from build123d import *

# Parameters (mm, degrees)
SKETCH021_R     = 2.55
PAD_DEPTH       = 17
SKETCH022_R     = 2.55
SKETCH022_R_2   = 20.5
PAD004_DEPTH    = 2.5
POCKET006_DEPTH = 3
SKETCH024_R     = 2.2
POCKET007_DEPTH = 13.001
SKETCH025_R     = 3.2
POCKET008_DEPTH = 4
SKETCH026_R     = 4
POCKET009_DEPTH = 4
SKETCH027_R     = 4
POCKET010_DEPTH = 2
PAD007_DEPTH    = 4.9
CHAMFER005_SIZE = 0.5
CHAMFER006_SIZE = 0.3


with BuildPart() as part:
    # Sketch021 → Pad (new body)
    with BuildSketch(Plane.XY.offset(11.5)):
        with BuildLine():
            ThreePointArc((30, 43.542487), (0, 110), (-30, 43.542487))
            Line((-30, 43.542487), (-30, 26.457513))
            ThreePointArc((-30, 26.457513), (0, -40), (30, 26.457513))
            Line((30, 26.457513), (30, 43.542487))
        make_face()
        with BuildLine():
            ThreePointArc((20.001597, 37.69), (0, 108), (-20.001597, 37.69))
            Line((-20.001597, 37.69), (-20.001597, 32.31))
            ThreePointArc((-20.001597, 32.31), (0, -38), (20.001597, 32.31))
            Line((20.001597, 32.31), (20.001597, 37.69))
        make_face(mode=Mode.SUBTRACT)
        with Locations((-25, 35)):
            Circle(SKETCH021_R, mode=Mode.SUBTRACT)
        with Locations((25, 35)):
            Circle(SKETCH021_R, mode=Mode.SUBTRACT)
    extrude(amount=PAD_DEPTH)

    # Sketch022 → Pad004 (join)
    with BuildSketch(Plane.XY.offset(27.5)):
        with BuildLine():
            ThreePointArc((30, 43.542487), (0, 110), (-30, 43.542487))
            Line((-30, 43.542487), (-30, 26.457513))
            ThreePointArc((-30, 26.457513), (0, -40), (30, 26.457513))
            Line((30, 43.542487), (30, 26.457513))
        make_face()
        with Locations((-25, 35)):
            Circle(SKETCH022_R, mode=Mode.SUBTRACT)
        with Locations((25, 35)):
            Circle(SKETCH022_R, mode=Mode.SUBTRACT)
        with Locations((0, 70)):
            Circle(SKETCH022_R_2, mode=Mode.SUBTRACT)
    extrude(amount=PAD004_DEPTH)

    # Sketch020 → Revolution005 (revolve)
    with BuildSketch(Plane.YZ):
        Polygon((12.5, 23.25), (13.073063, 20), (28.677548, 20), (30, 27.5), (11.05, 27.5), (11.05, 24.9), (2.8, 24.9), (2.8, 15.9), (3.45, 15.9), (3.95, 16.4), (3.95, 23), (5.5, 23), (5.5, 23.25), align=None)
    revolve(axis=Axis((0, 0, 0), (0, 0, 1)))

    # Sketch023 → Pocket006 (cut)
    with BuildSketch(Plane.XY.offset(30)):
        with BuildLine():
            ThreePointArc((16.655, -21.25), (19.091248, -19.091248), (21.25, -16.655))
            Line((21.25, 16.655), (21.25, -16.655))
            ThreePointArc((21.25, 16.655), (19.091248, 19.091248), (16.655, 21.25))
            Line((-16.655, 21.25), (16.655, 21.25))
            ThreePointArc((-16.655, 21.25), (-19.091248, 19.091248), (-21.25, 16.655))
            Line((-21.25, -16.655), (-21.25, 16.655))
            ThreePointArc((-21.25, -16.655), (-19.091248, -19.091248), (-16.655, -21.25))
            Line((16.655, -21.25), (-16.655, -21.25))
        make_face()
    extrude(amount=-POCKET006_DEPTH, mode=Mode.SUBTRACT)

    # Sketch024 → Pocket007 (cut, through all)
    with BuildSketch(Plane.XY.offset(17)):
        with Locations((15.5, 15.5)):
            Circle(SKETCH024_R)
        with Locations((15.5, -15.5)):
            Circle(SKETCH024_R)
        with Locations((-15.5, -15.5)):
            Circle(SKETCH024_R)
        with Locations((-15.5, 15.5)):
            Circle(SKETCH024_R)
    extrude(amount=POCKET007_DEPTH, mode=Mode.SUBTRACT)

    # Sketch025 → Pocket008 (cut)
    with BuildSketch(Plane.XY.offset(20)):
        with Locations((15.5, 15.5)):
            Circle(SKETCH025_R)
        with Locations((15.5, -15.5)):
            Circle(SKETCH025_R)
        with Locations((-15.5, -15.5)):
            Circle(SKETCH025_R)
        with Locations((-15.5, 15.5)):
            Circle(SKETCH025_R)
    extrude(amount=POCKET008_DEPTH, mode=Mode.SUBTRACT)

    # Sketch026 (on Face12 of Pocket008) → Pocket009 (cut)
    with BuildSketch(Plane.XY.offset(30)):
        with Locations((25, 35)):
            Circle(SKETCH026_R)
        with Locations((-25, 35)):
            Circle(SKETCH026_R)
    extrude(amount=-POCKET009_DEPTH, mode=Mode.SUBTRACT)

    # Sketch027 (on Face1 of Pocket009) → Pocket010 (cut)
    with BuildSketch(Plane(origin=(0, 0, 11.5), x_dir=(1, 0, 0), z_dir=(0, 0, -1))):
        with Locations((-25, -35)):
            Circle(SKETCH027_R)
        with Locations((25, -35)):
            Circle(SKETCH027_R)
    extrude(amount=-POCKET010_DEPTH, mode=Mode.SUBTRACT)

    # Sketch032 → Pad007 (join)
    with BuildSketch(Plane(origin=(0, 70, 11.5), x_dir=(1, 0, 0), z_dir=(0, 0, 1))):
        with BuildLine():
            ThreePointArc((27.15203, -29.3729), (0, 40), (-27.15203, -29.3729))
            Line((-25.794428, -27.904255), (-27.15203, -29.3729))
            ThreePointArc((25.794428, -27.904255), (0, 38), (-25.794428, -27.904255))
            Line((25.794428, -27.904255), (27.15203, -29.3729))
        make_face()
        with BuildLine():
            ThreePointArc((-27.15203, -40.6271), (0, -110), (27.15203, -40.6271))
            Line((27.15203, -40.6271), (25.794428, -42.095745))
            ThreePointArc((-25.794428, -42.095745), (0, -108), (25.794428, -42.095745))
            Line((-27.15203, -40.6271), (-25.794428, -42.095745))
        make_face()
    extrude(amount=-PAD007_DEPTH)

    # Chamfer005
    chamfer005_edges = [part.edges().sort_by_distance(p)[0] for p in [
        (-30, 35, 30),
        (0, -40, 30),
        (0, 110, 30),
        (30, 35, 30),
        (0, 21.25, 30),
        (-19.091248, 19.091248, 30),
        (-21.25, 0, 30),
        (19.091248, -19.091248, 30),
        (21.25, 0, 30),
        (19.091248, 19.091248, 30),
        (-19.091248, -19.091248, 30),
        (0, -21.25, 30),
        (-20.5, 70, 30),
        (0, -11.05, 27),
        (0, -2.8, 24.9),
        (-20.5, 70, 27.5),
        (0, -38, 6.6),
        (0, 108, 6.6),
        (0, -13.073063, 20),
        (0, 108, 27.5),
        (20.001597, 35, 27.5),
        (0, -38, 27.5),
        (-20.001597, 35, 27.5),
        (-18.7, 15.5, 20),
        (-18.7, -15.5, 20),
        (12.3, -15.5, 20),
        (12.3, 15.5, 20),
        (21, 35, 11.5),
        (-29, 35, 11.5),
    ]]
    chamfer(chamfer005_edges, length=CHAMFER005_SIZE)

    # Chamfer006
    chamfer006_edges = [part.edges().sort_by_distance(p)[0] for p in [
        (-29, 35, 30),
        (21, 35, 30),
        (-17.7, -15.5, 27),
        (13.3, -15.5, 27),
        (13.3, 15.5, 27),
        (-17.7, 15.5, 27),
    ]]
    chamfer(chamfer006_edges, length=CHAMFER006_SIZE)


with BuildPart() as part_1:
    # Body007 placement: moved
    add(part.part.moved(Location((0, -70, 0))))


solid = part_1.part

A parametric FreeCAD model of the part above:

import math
import FreeCAD as App
import Part
import Sketcher

V = App.Vector
Q = App.Units.Quantity


def edges_at(feature, points):
    """Names of the edges that pass closest to the given points."""
    edges = feature.Shape.Edges
    near = lambda p: min(range(len(edges)), key=lambda i: edges[i].distToShape(Part.Vertex(*p))[0])
    return sorted({f"Edge{near(p) + 1}" for p in points})

doc = App.newDocument("Part")
body = doc.addObject("PartDesign::Body", "Body")

sketch1 = doc.addObject("Sketcher::SketchObject", "Sketch")
body.addObject(sketch1)
sketch1.AttachmentSupport = (doc.XY_Plane, [""])
sketch1.MapMode = "FlatFace"
sketch1.AttachmentOffset = App.Placement(V(0, 0, 11.5), App.Rotation())
sketch1.addGeometry([
    Part.ArcOfCircle(Part.Circle(V(0, 70, 0), V(0, 0, 1), 40), math.radians(-41.409622), math.radians(221.409622)),
    Part.LineSegment(V(-30, 43.542487, 0), V(-30, 26.457513, 0)),
    Part.ArcOfCircle(Part.Circle(V(0, 0, 0), V(0, 0, 1), 40), math.radians(138.590378), math.radians(401.409622)),
    Part.LineSegment(V(30, 26.457513, 0), V(30, 43.542487, 0)),
    Part.Circle(V(-25, 35, 0), V(0, 0, 1), 2.55),
    Part.ArcOfCircle(Part.Circle(V(0, 70, 0), V(0, 0, 1), 38), math.radians(-58.240304), math.radians(238.240304)),
    Part.LineSegment(V(20.001597, 37.69, 0), V(20.001597, 32.31, 0)),
    Part.ArcOfCircle(Part.Circle(V(0, 0, 0), V(0, 0, 1), 38), math.radians(121.759696), math.radians(418.240304)),
    Part.LineSegment(V(-20.001597, 32.31, 0), V(-20.001597, 37.69, 0)),
    Part.Circle(V(25, 35, 0), V(0, 0, 1), 2.55),
], False)
sketch1.addConstraint([
    Sketcher.Constraint("Coincident", 0, 2, 1, 1),
    Sketcher.Constraint("Coincident", 1, 2, 2, 1),
    Sketcher.Constraint("Coincident", 2, 2, 3, 1),
    Sketcher.Constraint("Coincident", 3, 2, 0, 1),
    Sketcher.Constraint("Coincident", 5, 1, 6, 1),
    Sketcher.Constraint("Coincident", 6, 2, 7, 2),
    Sketcher.Constraint("Coincident", 7, 1, 8, 1),
    Sketcher.Constraint("Coincident", 8, 2, 5, 2),
    Sketcher.Constraint("Vertical", 1),
    Sketcher.Constraint("Vertical", 3),
    Sketcher.Constraint("Vertical", 6),
    Sketcher.Constraint("Vertical", 8),
    Sketcher.Constraint("Coincident", 2, 3, -1, 1),
    Sketcher.Constraint("Coincident", 7, 3, -1, 1),
    Sketcher.Constraint("Coincident", 5, 3, 0, 3),
    Sketcher.Constraint("Equal", 0, 2),
    Sketcher.Constraint("Equal", 5, 7),
    Sketcher.Constraint("Equal", 4, 9),
    Sketcher.Constraint("Symmetric", 4, 3, 9, 3, -2),
    Sketcher.Constraint("Symmetric", 0, 2, 3, 2, -2),
    Sketcher.Constraint("Horizontal", 6, 2, 7, 1),
    Sketcher.Constraint("Radius", 0, 40.0),
    Sketcher.Constraint("Radius", 5, 38.0),
    Sketcher.Constraint("Diameter", 4, 5.1),
    Sketcher.Constraint("DistanceY", -1, 1, 0, 3, 70.0),
    Sketcher.Constraint("DistanceX", 4, 3, -1, 1, 25.0),
    Sketcher.Constraint("DistanceY", -1, 1, 4, 3, 35.0),
    Sketcher.Constraint("DistanceX", 0, 2, -1, 1, 30.0),
    Sketcher.Constraint("DistanceY", 6, 2, 6, 1, 5.38),
])
pad1 = doc.addObject("PartDesign::Pad", "Pad")
body.addObject(pad1)
pad1.Profile = sketch1
pad1.Length = 17

sketch2 = doc.addObject("Sketcher::SketchObject", "Sketch001")
body.addObject(sketch2)
sketch2.AttachmentSupport = (doc.XY_Plane, [""])
sketch2.MapMode = "FlatFace"
sketch2.AttachmentOffset = App.Placement(V(0, 0, 27.5), App.Rotation())
sketch2.addGeometry([
    Part.ArcOfCircle(Part.Circle(V(0, 70, 0), V(0, 0, 1), 40), math.radians(-41.409622), math.radians(221.409622)),
    Part.LineSegment(V(-30, 43.542487, 0), V(-30, 26.457513, 0)),
    Part.ArcOfCircle(Part.Circle(V(0, 0, 0), V(0, 0, 1), 40), math.radians(138.590378), math.radians(401.409622)),
    Part.LineSegment(V(30, 26.457513, 0), V(30, 43.542487, 0)),
    Part.Circle(V(-25, 35, 0), V(0, 0, 1), 2.55),
    Part.Circle(V(25, 35, 0), V(0, 0, 1), 2.55),
    Part.Circle(V(0, 70, 0), V(0, 0, 1), 20.5),
], False)
sketch2.addConstraint([
    Sketcher.Constraint("Coincident", 0, 2, 1, 1),
    Sketcher.Constraint("Coincident", 1, 2, 2, 1),
    Sketcher.Constraint("Coincident", 2, 2, 3, 1),
    Sketcher.Constraint("Coincident", 3, 2, 0, 1),
    Sketcher.Constraint("Vertical", 1),
    Sketcher.Constraint("Vertical", 3),
    Sketcher.Constraint("Coincident", 2, 3, -1, 1),
    Sketcher.Constraint("Coincident", 6, 3, 0, 3),
    Sketcher.Constraint("Equal", 0, 2),
    Sketcher.Constraint("Equal", 4, 5),
    Sketcher.Constraint("Symmetric", 4, 3, 5, 3, -2),
    Sketcher.Constraint("Symmetric", 0, 2, 3, 2, -2),
    Sketcher.Constraint("Diameter", 6, 41.0),
    Sketcher.Constraint("Radius", 0, 40.0),
    Sketcher.Constraint("Diameter", 4, 5.1),
    Sketcher.Constraint("DistanceY", -1, 1, 0, 3, 70.0),
    Sketcher.Constraint("DistanceX", 4, 3, -1, 1, 25.0),
    Sketcher.Constraint("DistanceY", -1, 1, 4, 3, 35.0),
    Sketcher.Constraint("DistanceX", 0, 2, -1, 1, 30.0),
])
pad2 = doc.addObject("PartDesign::Pad", "Pad001")
body.addObject(pad2)
pad2.Profile = sketch2
pad2.Length = 2.5

sketch3 = doc.addObject("Sketcher::SketchObject", "Sketch002")
body.addObject(sketch3)
sketch3.AttachmentSupport = (doc.YZ_Plane, [""])
sketch3.MapMode = "FlatFace"
sketch3.addGeometry([
    Part.LineSegment(V(12.5, 23.25, 0), V(13.073063, 20, 0)),
    Part.LineSegment(V(13.073063, 20, 0), V(28.677548, 20, 0)),
    Part.LineSegment(V(28.677548, 20, 0), V(30, 27.5, 0)),
    Part.LineSegment(V(30, 27.5, 0), V(11.05, 27.5, 0)),
    Part.LineSegment(V(11.05, 27.5, 0), V(11.05, 24.9, 0)),
    Part.LineSegment(V(11.05, 24.9, 0), V(2.8, 24.9, 0)),
    Part.LineSegment(V(2.8, 24.9, 0), V(2.8, 15.9, 0)),
    Part.LineSegment(V(2.8, 15.9, 0), V(3.45, 15.9, 0)),
    Part.LineSegment(V(3.45, 15.9, 0), V(3.95, 16.4, 0)),
    Part.LineSegment(V(3.95, 16.4, 0), V(3.95, 23, 0)),
    Part.LineSegment(V(3.95, 23, 0), V(5.5, 23, 0)),
    Part.LineSegment(V(5.5, 23, 0), V(5.5, 23.25, 0)),
    Part.LineSegment(V(5.5, 23.25, 0), V(12.5, 23.25, 0)),
], False)
sketch3.addConstraint([
    Sketcher.Constraint("Coincident", 0, 2, 1, 1),
    Sketcher.Constraint("Coincident", 1, 2, 2, 1),
    Sketcher.Constraint("Coincident", 2, 2, 3, 1),
    Sketcher.Constraint("Coincident", 3, 2, 4, 1),
    Sketcher.Constraint("Coincident", 4, 2, 5, 1),
    Sketcher.Constraint("Coincident", 5, 2, 6, 1),
    Sketcher.Constraint("Coincident", 6, 2, 7, 1),
    Sketcher.Constraint("Coincident", 7, 2, 8, 1),
    Sketcher.Constraint("Coincident", 8, 2, 9, 1),
    Sketcher.Constraint("Coincident", 9, 2, 10, 1),
    Sketcher.Constraint("Coincident", 10, 2, 11, 1),
    Sketcher.Constraint("Coincident", 11, 2, 12, 1),
    Sketcher.Constraint("Coincident", 12, 2, 0, 1),
    Sketcher.Constraint("Horizontal", 1),
    Sketcher.Constraint("Horizontal", 3),
    Sketcher.Constraint("Vertical", 4),
    Sketcher.Constraint("Horizontal", 5),
    Sketcher.Constraint("Vertical", 6),
    Sketcher.Constraint("Horizontal", 7),
    Sketcher.Constraint("Vertical", 9),
    Sketcher.Constraint("Horizontal", 10),
    Sketcher.Constraint("Vertical", 11),
    Sketcher.Constraint("Horizontal", 12),
    Sketcher.Constraint("DistanceX", 12, 1, 12, 2, 7.0),
    Sketcher.Constraint("DistanceY", 6, 2, 6, 1, 9.0),
    Sketcher.Constraint("Angle", 0, Q("-79.999995 deg")),
    Sketcher.Constraint("Angle", 2, Q("80.000003 deg")),
    Sketcher.Constraint("Angle", 8, Q("45 deg")),
    Sketcher.Constraint("DistanceY", 4, 2, 4, 1, 2.6),
    Sketcher.Constraint("DistanceY", 9, 1, 9, 2, 6.6),
    Sketcher.Constraint("DistanceY", -1, 1, 0, 2, 20.0),
    Sketcher.Constraint("DistanceX", -1, 1, 2, 2, 30.0),
    Sketcher.Constraint("DistanceY", -1, 1, 9, 2, 23.0),
    Sketcher.Constraint("DistanceX", 3, 2, 3, 1, 18.95),
    Sketcher.Constraint("DistanceX", 5, 2, 5, 1, 8.25),
    Sketcher.Constraint("DistanceX", 7, 1, 7, 2, 0.65),
    Sketcher.Constraint("DistanceX", 10, 1, 10, 2, 1.55),
    Sketcher.Constraint("DistanceY", 11, 1, 11, 2, 0.25),
    Sketcher.Constraint("DistanceY", -1, 1, 2, 2, 27.5),
])
revolution = doc.addObject("PartDesign::Revolution", "Revolution")
body.addObject(revolution)
revolution.Profile = sketch3
revolution.ReferenceAxis = (sketch3, ["V_Axis"])
revolution.Angle = 360

sketch4 = doc.addObject("Sketcher::SketchObject", "Sketch003")
body.addObject(sketch4)
sketch4.AttachmentSupport = (doc.XY_Plane, [""])
sketch4.MapMode = "FlatFace"
sketch4.AttachmentOffset = App.Placement(V(0, 0, 30), App.Rotation())
sketch4.addGeometry([
    Part.ArcOfCircle(Part.Circle(V(-0.000044, 0.000044, 0), V(0, 0, 1), 26.999165), math.radians(-51.911888), math.radians(-38.088112)),
    Part.LineSegment(V(21.25, -16.655, 0), V(21.25, 16.655, 0)),
    Part.ArcOfCircle(Part.Circle(V(-0.000044, -0.000044, 0), V(0, 0, 1), 26.999165), math.radians(38.088112), math.radians(51.911888)),
    Part.LineSegment(V(16.655, 21.25, 0), V(-16.655, 21.25, 0)),
    Part.ArcOfCircle(Part.Circle(V(0.000044, -0.000044, 0), V(0, 0, 1), 26.999165), math.radians(128.088112), math.radians(141.911888)),
    Part.LineSegment(V(-21.25, 16.655, 0), V(-21.25, -16.655, 0)),
    Part.ArcOfCircle(Part.Circle(V(0.000044, 0.000044, 0), V(0, 0, 1), 26.999165), math.radians(-141.911888), math.radians(-128.088112)),
    Part.LineSegment(V(-16.655, -21.25, 0), V(16.655, -21.25, 0)),
], False)
sketch4.addConstraint([
    Sketcher.Constraint("Coincident", 0, 2, 1, 1),
    Sketcher.Constraint("Coincident", 1, 2, 2, 1),
    Sketcher.Constraint("Coincident", 2, 2, 3, 1),
    Sketcher.Constraint("Coincident", 3, 2, 4, 1),
    Sketcher.Constraint("Coincident", 4, 2, 5, 1),
    Sketcher.Constraint("Coincident", 5, 2, 6, 1),
    Sketcher.Constraint("Coincident", 6, 2, 7, 1),
    Sketcher.Constraint("Coincident", 7, 2, 0, 1),
    Sketcher.Constraint("Vertical", 1),
    Sketcher.Constraint("Horizontal", 3),
    Sketcher.Constraint("Vertical", 5),
    Sketcher.Constraint("Horizontal", 7),
    Sketcher.Constraint("Equal", 0, 2),
    Sketcher.Constraint("Equal", 2, 4),
    Sketcher.Constraint("Equal", 4, 6),
    Sketcher.Constraint("Symmetric", 0, 3, 4, 3, -1, 1),
    Sketcher.Constraint("Symmetric", 2, 3, 6, 3, -1, 1),
    Sketcher.Constraint("Symmetric", 2, 3, 4, 3, -2),
    Sketcher.Constraint("Horizontal", 1, 2, 4, 2),
    Sketcher.Constraint("Vertical", 3, 2, 6, 2),
    Sketcher.Constraint("Equal", 7, 1),
    Sketcher.Constraint("DistanceX", 3, 2, 3, 1, 33.31),
    Sketcher.Constraint("DistanceX", -1, 1, 0, 2, 21.25),
    Sketcher.Constraint("DistanceY", -1, 1, 2, 2, 21.25),
    Sketcher.Constraint("Radius", 0, 26.999165),
])
pocket1 = doc.addObject("PartDesign::Pocket", "Pocket")
body.addObject(pocket1)
pocket1.Profile = sketch4
pocket1.Length = 3

sketch5 = doc.addObject("Sketcher::SketchObject", "Sketch004")
body.addObject(sketch5)
sketch5.AttachmentSupport = (doc.XY_Plane, [""])
sketch5.MapMode = "FlatFace"
sketch5.AttachmentOffset = App.Placement(V(0, 0, 17), App.Rotation())
sketch5.addGeometry([
    Part.Circle(V(15.5, 15.5, 0), V(0, 0, 1), 2.2),
    Part.Circle(V(15.5, -15.5, 0), V(0, 0, 1), 2.2),
    Part.Circle(V(-15.5, -15.5, 0), V(0, 0, 1), 2.2),
    Part.Circle(V(-15.5, 15.5, 0), V(0, 0, 1), 2.2),
], False)
sketch5.addConstraint([
    Sketcher.Constraint("Equal", 0, 1),
    Sketcher.Constraint("Equal", 1, 2),
    Sketcher.Constraint("Equal", 2, 3),
    Sketcher.Constraint("Symmetric", 0, 3, 2, 3, -1, 1),
    Sketcher.Constraint("Symmetric", 1, 3, 3, 3, -1, 1),
    Sketcher.Constraint("Symmetric", 1, 3, 2, 3, -2),
    Sketcher.Constraint("Diameter", 0, 4.4),
    Sketcher.Constraint("DistanceY", 1, 3, 0, 3, 31.0),
    Sketcher.Constraint("DistanceX", 2, 3, 1, 3, 31.0),
])
pocket2 = doc.addObject("PartDesign::Pocket", "Pocket001")
body.addObject(pocket2)
pocket2.Profile = sketch5
pocket2.Type = "ThroughAll"
pocket2.Reversed = True

sketch6 = doc.addObject("Sketcher::SketchObject", "Sketch005")
body.addObject(sketch6)
sketch6.AttachmentSupport = (doc.XY_Plane, [""])
sketch6.MapMode = "FlatFace"
sketch6.AttachmentOffset = App.Placement(V(0, 0, 20), App.Rotation())
sketch6.addGeometry([
    Part.Circle(V(15.5, 15.5, 0), V(0, 0, 1), 3.2),
    Part.Circle(V(15.5, -15.5, 0), V(0, 0, 1), 3.2),
    Part.Circle(V(-15.5, -15.5, 0), V(0, 0, 1), 3.2),
    Part.Circle(V(-15.5, 15.5, 0), V(0, 0, 1), 3.2),
], False)
sketch6.addConstraint([
    Sketcher.Constraint("Equal", 0, 1),
    Sketcher.Constraint("Equal", 1, 2),
    Sketcher.Constraint("Equal", 2, 3),
    Sketcher.Constraint("Symmetric", 0, 3, 2, 3, -1, 1),
    Sketcher.Constraint("Symmetric", 1, 3, 3, 3, -1, 1),
    Sketcher.Constraint("Symmetric", 1, 3, 2, 3, -2),
    Sketcher.Constraint("Diameter", 0, 6.4),
    Sketcher.Constraint("DistanceY", 1, 3, 0, 3, 31.0),
    Sketcher.Constraint("DistanceX", 2, 3, 1, 3, 31.0),
])
pocket3 = doc.addObject("PartDesign::Pocket", "Pocket002")
body.addObject(pocket3)
pocket3.Profile = sketch6
pocket3.Length = 4
pocket3.Reversed = True

sketch7 = doc.addObject("Sketcher::SketchObject", "Sketch006")
body.addObject(sketch7)
sketch7.AttachmentSupport = (doc.XY_Plane, [""])
sketch7.MapMode = "FlatFace"
sketch7.AttachmentOffset = App.Placement(V(0, 0, 30), App.Rotation())
sketch7.addGeometry([
    Part.Circle(V(25, 35, 0), V(0, 0, 1), 4),
    Part.Circle(V(-25, 35, 0), V(0, 0, 1), 4),
], False)
sketch7.addConstraint([
    Sketcher.Constraint("Equal", 0, 1),
    Sketcher.Constraint("Symmetric", 0, 3, 1, 3, -2),
    Sketcher.Constraint("Diameter", 0, 8.0),
    Sketcher.Constraint("DistanceX", -1, 1, 0, 3, 25.0),
    Sketcher.Constraint("DistanceY", -1, 1, 0, 3, 35.0),
])
pocket4 = doc.addObject("PartDesign::Pocket", "Pocket003")
body.addObject(pocket4)
pocket4.Profile = sketch7
pocket4.Length = 4

sketch8 = doc.addObject("Sketcher::SketchObject", "Sketch007")
body.addObject(sketch8)
sketch8.AttachmentSupport = (doc.XY_Plane, [""])
sketch8.MapMode = "FlatFace"
sketch8.AttachmentOffset = App.Placement(V(0, 0, 11.5), App.Rotation())
sketch8.addGeometry([
    Part.Circle(V(-25, 35, 0), V(0, 0, 1), 4),
    Part.Circle(V(25, 35, 0), V(0, 0, 1), 4),
], False)
sketch8.addConstraint([
    Sketcher.Constraint("Equal", 0, 1),
    Sketcher.Constraint("Symmetric", 0, 3, 1, 3, -2),
    Sketcher.Constraint("Diameter", 0, 8.0),
    Sketcher.Constraint("DistanceX", 0, 3, -1, 1, 25.0),
    Sketcher.Constraint("DistanceY", -1, 1, 0, 3, 35.0),
])
pocket5 = doc.addObject("PartDesign::Pocket", "Pocket004")
body.addObject(pocket5)
pocket5.Profile = sketch8
pocket5.Length = 2
pocket5.Reversed = True

sketch9 = doc.addObject("Sketcher::SketchObject", "Sketch008")
body.addObject(sketch9)
sketch9.AttachmentSupport = (doc.XY_Plane, [""])
sketch9.MapMode = "FlatFace"
sketch9.AttachmentOffset = App.Placement(V(0, 0, 11.5), App.Rotation())
sketch9.addGeometry([
    Part.ArcOfCircle(Part.Circle(V(0, 70, 0), V(0, 0, 1), 40), math.radians(-47.25), math.radians(227.25)),
    Part.LineSegment(V(-27.15203, 40.6271, 0), V(-25.794428, 42.095745, 0)),
    Part.ArcOfCircle(Part.Circle(V(0, 70, 0), V(0, 0, 1), 38), math.radians(-47.25), math.radians(227.25)),
    Part.LineSegment(V(25.794428, 42.095745, 0), V(27.15203, 40.6271, 0)),
    Part.ArcOfCircle(Part.Circle(V(0, 0, 0), V(0, 0, 1), 40), math.radians(132.75), math.radians(407.25)),
    Part.LineSegment(V(27.15203, 29.3729, 0), V(25.794428, 27.904255, 0)),
    Part.ArcOfCircle(Part.Circle(V(0, 0, 0), V(0, 0, 1), 38), math.radians(132.75), math.radians(407.25)),
    Part.LineSegment(V(-25.794428, 27.904255, 0), V(-27.15203, 29.3729, 0)),
], False)
sketch9.addConstraint([
    Sketcher.Constraint("Coincident", 0, 2, 1, 1),
    Sketcher.Constraint("Coincident", 1, 2, 2, 2),
    Sketcher.Constraint("Coincident", 2, 1, 3, 1),
    Sketcher.Constraint("Coincident", 3, 2, 0, 1),
    Sketcher.Constraint("Coincident", 4, 2, 5, 1),
    Sketcher.Constraint("Coincident", 5, 2, 6, 2),
    Sketcher.Constraint("Coincident", 6, 1, 7, 1),
    Sketcher.Constraint("Coincident", 7, 2, 4, 1),
    Sketcher.Constraint("Coincident", 4, 3, -1, 1),
    Sketcher.Constraint("Coincident", 6, 3, -1, 1),
    Sketcher.Constraint("Coincident", 2, 3, 0, 3),
    Sketcher.Constraint("Equal", 0, 4),
    Sketcher.Constraint("Equal", 2, 6),
    Sketcher.Constraint("Symmetric", 1, 2, 2, 1, -2),
    Sketcher.Constraint("Parallel", 1, 5),
    Sketcher.Constraint("Parallel", 3, 7),
    Sketcher.Constraint("Horizontal", 0, 2, 3, 2),
    Sketcher.Constraint("Horizontal", 5, 2, 6, 1),
    Sketcher.Constraint("Vertical", 3, 2, 4, 2),
    Sketcher.Constraint("Radius", 0, 40.0),
    Sketcher.Constraint("Radius", 2, 38.0),
    Sketcher.Constraint("DistanceY", -1, 1, 0, 3, 70.0),
    Sketcher.Constraint("Angle", 1, Q("47.249989 deg")),
    Sketcher.Constraint("DistanceY", -1, 1, 0, 2, 40.6271),
])
pad3 = doc.addObject("PartDesign::Pad", "Pad002")
body.addObject(pad3)
pad3.Profile = sketch9
pad3.Length = 4.9
pad3.Reversed = True
doc.recompute()

chamfer = doc.addObject("PartDesign::Chamfer", "Chamfer")
body.addObject(chamfer)
chamfer.Base = (pad3, edges_at(pad3, [
    (-30, 35, 30),
    (0, -40, 30),
    (0, 110, 30),
    (30, 35, 30),
    (0, 21.25, 30),
    (-19.091, 19.091, 30),
    (-21.25, 0, 30),
    (19.091, -19.091, 30),
    (21.25, 0, 30),
    (19.091, 19.091, 30),
    (-19.091, -19.091, 30),
    (0, -21.25, 30),
    (-20.5, 70, 30),
    (0, -11.05, 27),
    (0, -2.8, 24.9),
    (-20.5, 70, 27.5),
    (0, -38, 6.6),
    (0, 108, 6.6),
    (0, -13.073, 20),
    (0, 108, 27.5),
    (20.002, 35, 27.5),
    (0, -38, 27.5),
    (-20.002, 35, 27.5),
    (-18.7, 15.5, 20),
    (-18.7, -15.5, 20),
    (12.3, -15.5, 20),
    (12.3, 15.5, 20),
    (21, 35, 11.5),
    (-29, 35, 11.5),
]))
chamfer.Size = 0.5
doc.recompute()

chamfer2 = doc.addObject("PartDesign::Chamfer", "Chamfer001")
body.addObject(chamfer2)
chamfer2.Base = (chamfer, edges_at(chamfer, [
    (-29, 35, 30),
    (21, 35, 30),
    (-17.7, -15.5, 27),
    (13.3, -15.5, 27),
    (13.3, 15.5, 27),
    (-17.7, 15.5, 27),
]))
chamfer2.Size = 0.3
body2 = doc.addObject("PartDesign::Body", "Body001")
doc.recompute()

body.Placement = App.Placement(V(0, -70, 0), App.Rotation(V(0, 0, 1), 0))
boolean = doc.addObject("PartDesign::Boolean", "Boolean")
body2.addObject(boolean)
boolean.Type = "Fuse"
boolean.addObjects([body])

doc.recompute()
